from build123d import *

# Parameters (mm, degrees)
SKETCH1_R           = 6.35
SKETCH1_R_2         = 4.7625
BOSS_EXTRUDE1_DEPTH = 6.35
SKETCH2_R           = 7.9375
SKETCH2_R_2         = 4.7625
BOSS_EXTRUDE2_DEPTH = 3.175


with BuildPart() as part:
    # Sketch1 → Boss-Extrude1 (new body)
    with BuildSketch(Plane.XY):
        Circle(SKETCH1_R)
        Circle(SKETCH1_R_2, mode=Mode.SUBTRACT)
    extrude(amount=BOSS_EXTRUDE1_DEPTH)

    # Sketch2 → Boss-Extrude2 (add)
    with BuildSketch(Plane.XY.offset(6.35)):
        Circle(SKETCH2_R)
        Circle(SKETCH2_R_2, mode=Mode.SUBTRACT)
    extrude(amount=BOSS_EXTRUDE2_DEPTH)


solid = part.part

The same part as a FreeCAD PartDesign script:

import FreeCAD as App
import Part
import Sketcher
Q = App.Units.Quantity

doc = App.newDocument("Part")
body = doc.addObject("PartDesign::Body", "Body")

sketch1 = body.newObject("Sketcher::SketchObject", "Sketch")
sketch1.AttachmentSupport = (doc.getObject("XY_Plane"), [""])
sketch1.MapMode = "FlatFace"
sketch1.addGeometry(Part.Circle(App.Vector(0, 0, 0), App.Vector(0, 0, 1), 6.35), False)
sketch1.addGeometry(Part.Circle(App.Vector(0, 0, 0), App.Vector(0, 0, 1), 4.7625), False)
sketch1.addConstraint(Sketcher.Constraint("Coincident", 0, 3, -1, 1))
sketch1.addConstraint(Sketcher.Constraint("Coincident", 1, 3, -1, 1))
sketch1.addConstraint(Sketcher.Constraint("Diameter", 0, Q("0.5 in")))
sketch1.addConstraint(Sketcher.Constraint("Diameter", 1, Q("0.375 in")))
pad1 = body.newObject("PartDesign::Pad", "Pad")
pad1.Profile = sketch1
pad1.Length = Q("0.25 in")

sketch2 = body.newObject("Sketcher::SketchObject", "Sketch001")
sketch2.AttachmentSupport = (doc.getObject("XY_Plane"), [""])
sketch2.MapMode = "FlatFace"
sketch2.AttachmentOffset = App.Placement(App.Vector(0, 0, 0.25 * 25.4), App.Rotation())
sketch2.addGeometry(Part.Circle(App.Vector(0, 0, 0), App.Vector(0, 0, 1), 7.9375), False)
sketch2.addGeometry(Part.Circle(App.Vector(0, 0, 0), App.Vector(0, 0, 1), 4.7625), False)
sketch2.addConstraint(Sketcher.Constraint("Coincident", 0, 3, -1, 1))
sketch2.addConstraint(Sketcher.Constraint("Coincident", 1, 3, -1, 1))
sketch2.addConstraint(Sketcher.Constraint("Diameter", 0, Q("0.625 in")))
sketch2.addConstraint(Sketcher.Constraint("Diameter", 1, Q("0.375 in")))
pad2 = body.newObject("PartDesign::Pad", "Pad001")
pad2.Profile = sketch2
pad2.Length = Q("0.125 in")

doc.recompute()
